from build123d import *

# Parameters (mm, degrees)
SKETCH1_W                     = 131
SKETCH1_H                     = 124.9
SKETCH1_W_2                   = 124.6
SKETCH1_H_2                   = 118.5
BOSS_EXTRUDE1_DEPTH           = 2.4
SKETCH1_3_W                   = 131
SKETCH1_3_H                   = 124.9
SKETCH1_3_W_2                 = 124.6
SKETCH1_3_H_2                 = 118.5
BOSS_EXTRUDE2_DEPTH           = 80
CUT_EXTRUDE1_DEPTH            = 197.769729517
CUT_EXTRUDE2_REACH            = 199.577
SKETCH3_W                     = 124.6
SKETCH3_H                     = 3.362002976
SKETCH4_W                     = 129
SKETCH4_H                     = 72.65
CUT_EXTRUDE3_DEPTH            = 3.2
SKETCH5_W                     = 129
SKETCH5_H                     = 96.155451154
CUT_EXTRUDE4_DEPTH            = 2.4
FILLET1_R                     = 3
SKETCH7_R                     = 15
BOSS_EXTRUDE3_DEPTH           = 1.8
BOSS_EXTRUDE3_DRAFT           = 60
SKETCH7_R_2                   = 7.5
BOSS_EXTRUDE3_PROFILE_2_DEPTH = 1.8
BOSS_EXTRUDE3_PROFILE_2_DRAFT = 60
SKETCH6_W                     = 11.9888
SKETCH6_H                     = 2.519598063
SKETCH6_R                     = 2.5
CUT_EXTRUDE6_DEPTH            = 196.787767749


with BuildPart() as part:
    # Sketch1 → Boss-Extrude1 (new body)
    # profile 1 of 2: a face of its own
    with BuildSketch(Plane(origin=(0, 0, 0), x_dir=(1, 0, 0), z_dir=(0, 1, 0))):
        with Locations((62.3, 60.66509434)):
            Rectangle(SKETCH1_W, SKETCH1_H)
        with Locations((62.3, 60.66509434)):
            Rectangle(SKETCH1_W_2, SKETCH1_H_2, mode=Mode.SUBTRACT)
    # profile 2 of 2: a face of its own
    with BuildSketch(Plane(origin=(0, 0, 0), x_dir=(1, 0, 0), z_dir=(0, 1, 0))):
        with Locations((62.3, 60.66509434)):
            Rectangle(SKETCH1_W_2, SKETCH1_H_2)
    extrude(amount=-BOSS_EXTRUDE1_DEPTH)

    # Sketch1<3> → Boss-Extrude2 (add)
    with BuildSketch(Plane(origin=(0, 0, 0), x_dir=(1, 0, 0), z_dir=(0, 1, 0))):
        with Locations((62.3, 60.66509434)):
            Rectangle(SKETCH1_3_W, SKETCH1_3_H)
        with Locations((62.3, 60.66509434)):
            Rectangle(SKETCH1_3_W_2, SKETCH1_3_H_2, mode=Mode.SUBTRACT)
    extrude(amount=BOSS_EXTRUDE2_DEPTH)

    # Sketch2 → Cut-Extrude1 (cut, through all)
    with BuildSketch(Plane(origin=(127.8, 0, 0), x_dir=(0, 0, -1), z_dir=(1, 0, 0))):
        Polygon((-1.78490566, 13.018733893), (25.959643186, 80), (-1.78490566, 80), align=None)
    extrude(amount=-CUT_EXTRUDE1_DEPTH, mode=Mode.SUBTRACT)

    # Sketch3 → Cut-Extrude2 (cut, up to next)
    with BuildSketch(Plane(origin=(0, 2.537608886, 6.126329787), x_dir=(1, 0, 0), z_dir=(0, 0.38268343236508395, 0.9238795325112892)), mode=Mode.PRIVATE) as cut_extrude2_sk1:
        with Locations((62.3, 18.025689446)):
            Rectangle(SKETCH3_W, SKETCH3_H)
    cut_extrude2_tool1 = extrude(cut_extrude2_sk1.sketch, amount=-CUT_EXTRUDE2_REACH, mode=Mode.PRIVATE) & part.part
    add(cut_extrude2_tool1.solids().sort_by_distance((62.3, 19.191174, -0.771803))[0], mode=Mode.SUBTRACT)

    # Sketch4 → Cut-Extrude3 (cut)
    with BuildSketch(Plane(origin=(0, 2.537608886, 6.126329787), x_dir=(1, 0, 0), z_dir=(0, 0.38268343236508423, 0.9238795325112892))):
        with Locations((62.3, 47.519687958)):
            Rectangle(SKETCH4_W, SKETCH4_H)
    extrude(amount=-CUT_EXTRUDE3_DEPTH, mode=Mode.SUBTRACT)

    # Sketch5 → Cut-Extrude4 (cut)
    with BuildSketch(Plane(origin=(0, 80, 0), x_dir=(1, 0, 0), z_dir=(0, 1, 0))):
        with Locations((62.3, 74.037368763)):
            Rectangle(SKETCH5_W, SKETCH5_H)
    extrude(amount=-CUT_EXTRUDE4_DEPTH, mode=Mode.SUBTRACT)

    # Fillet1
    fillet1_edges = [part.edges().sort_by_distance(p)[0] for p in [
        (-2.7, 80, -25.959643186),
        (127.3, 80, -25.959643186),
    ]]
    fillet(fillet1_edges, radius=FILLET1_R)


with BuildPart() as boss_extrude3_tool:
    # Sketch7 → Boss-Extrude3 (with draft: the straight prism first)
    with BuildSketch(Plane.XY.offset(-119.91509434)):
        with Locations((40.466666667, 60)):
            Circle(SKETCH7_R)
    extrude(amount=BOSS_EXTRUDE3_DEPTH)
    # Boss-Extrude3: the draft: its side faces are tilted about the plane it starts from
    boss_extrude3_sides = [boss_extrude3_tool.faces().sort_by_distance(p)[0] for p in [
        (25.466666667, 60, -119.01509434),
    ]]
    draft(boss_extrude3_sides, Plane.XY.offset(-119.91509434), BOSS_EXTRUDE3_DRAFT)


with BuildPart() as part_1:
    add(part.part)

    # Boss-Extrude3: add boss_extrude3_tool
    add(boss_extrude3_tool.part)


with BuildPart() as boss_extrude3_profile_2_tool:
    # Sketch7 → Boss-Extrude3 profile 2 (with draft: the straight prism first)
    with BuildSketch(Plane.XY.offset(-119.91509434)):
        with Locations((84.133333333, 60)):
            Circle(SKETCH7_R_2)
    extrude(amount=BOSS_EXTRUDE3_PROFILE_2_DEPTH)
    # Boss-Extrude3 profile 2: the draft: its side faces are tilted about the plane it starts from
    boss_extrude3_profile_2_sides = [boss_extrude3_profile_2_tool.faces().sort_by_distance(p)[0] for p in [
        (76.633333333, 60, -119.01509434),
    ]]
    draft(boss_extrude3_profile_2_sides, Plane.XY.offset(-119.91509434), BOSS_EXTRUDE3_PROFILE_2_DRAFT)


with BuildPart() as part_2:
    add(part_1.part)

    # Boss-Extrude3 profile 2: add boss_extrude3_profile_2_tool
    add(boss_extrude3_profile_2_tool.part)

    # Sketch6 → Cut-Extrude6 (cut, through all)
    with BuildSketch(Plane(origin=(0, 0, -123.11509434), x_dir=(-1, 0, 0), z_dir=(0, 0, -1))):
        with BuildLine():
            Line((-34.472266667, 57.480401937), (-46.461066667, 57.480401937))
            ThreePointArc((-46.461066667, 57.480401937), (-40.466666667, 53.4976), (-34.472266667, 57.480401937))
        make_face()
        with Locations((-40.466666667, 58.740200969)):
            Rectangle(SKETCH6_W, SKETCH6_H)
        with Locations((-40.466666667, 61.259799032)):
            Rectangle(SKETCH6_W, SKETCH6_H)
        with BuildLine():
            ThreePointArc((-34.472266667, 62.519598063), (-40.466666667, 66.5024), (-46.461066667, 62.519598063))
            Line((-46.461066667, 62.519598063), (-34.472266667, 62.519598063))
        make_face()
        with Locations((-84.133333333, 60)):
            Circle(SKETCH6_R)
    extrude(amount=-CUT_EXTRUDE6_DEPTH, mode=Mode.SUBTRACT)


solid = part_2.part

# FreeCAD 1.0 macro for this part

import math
import FreeCAD as App
import Part
import Sketcher
from FreeCAD import Vector
Q = App.Units.Quantity


def edges_at(feature, points):
    """Names of the edges that pass closest to the given points."""
    edges = feature.Shape.Edges
    near = lambda p: min(range(len(edges)), key=lambda i: edges[i].distToShape(Part.Vertex(*p))[0])
    return sorted({f"Edge{near(p) + 1}" for p in points})


def faces_at(feature, points):
    """Names of the faces that lie closest to the given points."""
    faces = feature.Shape.Faces
    near = lambda p: min(range(len(faces)), key=lambda i: faces[i].distToShape(Part.Vertex(*p))[0])
    return sorted({f"Face{near(p) + 1}" for p in points})

doc = App.newDocument("Part")
body = doc.addObject("PartDesign::Body", "Body")

sketch1 = body.newObject("Sketcher::SketchObject", "Sketch")
sketch1.AttachmentSupport = (doc.getObject("XZ_Plane"), [""])
sketch1.MapMode = "FlatFace"
sketch1.addGeometry(Part.LineSegment(Vector(-3.2, -123.115094, 0), Vector(-3.2, 1.784906, 0)), False)
sketch1.addGeometry(Part.LineSegment(Vector(-3.2, 1.784906, 0), Vector(127.8, 1.784906, 0)), False)
sketch1.addGeometry(Part.LineSegment(Vector(127.8, 1.784906, 0), Vector(127.8, -123.115094, 0)), False)
sketch1.addGeometry(Part.LineSegment(Vector(127.8, -123.115094, 0), Vector(-3.2, -123.115094, 0)), False)
sketch1.addConstraint(Sketcher.Constraint("Coincident", 0, 2, 1, 1))
sketch1.addConstraint(Sketcher.Constraint("Coincident", 1, 2, 2, 1))
sketch1.addConstraint(Sketcher.Constraint("Coincident", 2, 2, 3, 1))
sketch1.addConstraint(Sketcher.Constraint("Coincident", 3, 2, 0, 1))
sketch1.addConstraint(Sketcher.Constraint("Vertical", 0))
sketch1.addConstraint(Sketcher.Constraint("Horizontal", 1))
sketch1.addConstraint(Sketcher.Constraint("Vertical", 2))
sketch1.addConstraint(Sketcher.Constraint("Horizontal", 3))
sketch1.addConstraint(Sketcher.Constraint("DistanceX", 1, 1, 1, 2, 131.0))
sketch1.addConstraint(Sketcher.Constraint("DistanceY", 0, 1, 0, 2, 124.9))
sketch1.addConstraint(Sketcher.Constraint("DistanceX", 0, 2, -1, 1, 3.2))
sketch1.addConstraint(Sketcher.Constraint("DistanceY", -1, 1, 0, 2, 1.784906))
pad1 = body.newObject("PartDesign::Pad", "Pad")
pad1.Profile = sketch1
pad1.Length = 2.4

sketch2 = body.newObject("Sketcher::SketchObject", "Sketch001")
sketch2.AttachmentSupport = (doc.getObject("XZ_Plane"), [""])
sketch2.MapMode = "FlatFace"
sketch2.addGeometry(Part.LineSegment(Vector(-3.2, -123.115094, 0), Vector(-3.2, 1.784906, 0)), False)
sketch2.addGeometry(Part.LineSegment(Vector(-3.2, 1.784906, 0), Vector(127.8, 1.784906, 0)), False)
sketch2.addGeometry(Part.LineSegment(Vector(127.8, 1.784906, 0), Vector(127.8, -123.115094, 0)), False)
sketch2.addGeometry(Part.LineSegment(Vector(127.8, -123.115094, 0), Vector(-3.2, -123.115094, 0)), False)
sketch2.addGeometry(Part.LineSegment(Vector(124.6, -1.415094, 0), Vector(0, -1.415094, 0)), False)
sketch2.addGeometry(Part.LineSegment(Vector(0, -1.415094, 0), Vector(0, -119.915094, 0)), False)
sketch2.addGeometry(Part.LineSegment(Vector(0, -119.915094, 0), Vector(124.6, -119.915094, 0)), False)
sketch2.addGeometry(Part.LineSegment(Vector(124.6, -119.915094, 0), Vector(124.6, -1.415094, 0)), False)
sketch2.addConstraint(Sketcher.Constraint("Coincident", 0, 2, 1, 1))
sketch2.addConstraint(Sketcher.Constraint("Coincident", 1, 2, 2, 1))
sketch2.addConstraint(Sketcher.Constraint("Coincident", 2, 2, 3, 1))
sketch2.addConstraint(Sketcher.Constraint("Coincident", 3, 2, 0, 1))
sketch2.addConstraint(Sketcher.Constraint("Coincident", 4, 2, 5, 1))
sketch2.addConstraint(Sketcher.Constraint("Coincident", 5, 2, 6, 1))
sketch2.addConstraint(Sketcher.Constraint("Coincident", 6, 2, 7, 1))
sketch2.addConstraint(Sketcher.Constraint("Coincident", 7, 2, 4, 1))
sketch2.addConstraint(Sketcher.Constraint("Vertical", 0))
sketch2.addConstraint(Sketcher.Constraint("Horizontal", 1))
sketch2.addConstraint(Sketcher.Constraint("Vertical", 2))
sketch2.addConstraint(Sketcher.Constraint("Horizontal", 3))
sketch2.addConstraint(Sketcher.Constraint("Horizontal", 4))
sketch2.addConstraint(Sketcher.Constraint("Vertical", 5))
sketch2.addConstraint(Sketcher.Constraint("Horizontal", 6))
sketch2.addConstraint(Sketcher.Constraint("Vertical", 7))
sketch2.addConstraint(Sketcher.Constraint("PointOnObject", 4, 2, -2))
sketch2.addConstraint(Sketcher.Constraint("DistanceX", 1, 1, 1, 2, 131.0))
sketch2.addConstraint(Sketcher.Constraint("DistanceX", 4, 2, 4, 1, 124.6))
sketch2.addConstraint(Sketcher.Constraint("DistanceY", 0, 1, 0, 2, 124.9))
sketch2.addConstraint(Sketcher.Constraint("DistanceY", 5, 2, 5, 1, 118.5))
sketch2.addConstraint(Sketcher.Constraint("DistanceX", 0, 2, -1, 1, 3.2))
sketch2.addConstraint(Sketcher.Constraint("DistanceY", 4, 2, 0, 2, 3.2))
sketch2.addConstraint(Sketcher.Constraint("DistanceY", -1, 1, 0, 2, 1.784906))
pad2 = body.newObject("PartDesign::Pad", "Pad001")
pad2.Profile = sketch2
pad2.Length = 80
pad2.Reversed = True

sketch3 = body.newObject("Sketcher::SketchObject", "Sketch002")
sketch3.AttachmentSupport = (doc.getObject("YZ_Plane"), [""])
sketch3.MapMode = "FlatFace"
sketch3.AttachmentOffset = App.Placement(Vector(0, 0, 127.8), App.Rotation())
sketch3.addGeometry(Part.LineSegment(Vector(13.018734, 1.784906, 0), Vector(80, -25.959643, 0)), False)
sketch3.addGeometry(Part.LineSegment(Vector(80, -25.959643, 0), Vector(80, 1.784906, 0)), False)
sketch3.addGeometry(Part.LineSegment(Vector(80, 1.784906, 0), Vector(13.018734, 1.784906, 0)), False)
sketch3.addConstraint(Sketcher.Constraint("Coincident", 0, 2, 1, 1))
sketch3.addConstraint(Sketcher.Constraint("Coincident", 1, 2, 2, 1))
sketch3.addConstraint(Sketcher.Constraint("Coincident", 2, 2, 0, 1))
sketch3.addConstraint(Sketcher.Constraint("Vertical", 1))
sketch3.addConstraint(Sketcher.Constraint("Horizontal", 2))
sketch3.addConstraint(Sketcher.Constraint("DistanceX", -1, 1, 0, 2, 80.0))
sketch3.addConstraint(Sketcher.Constraint("Angle", 0, Q("-22.5 deg")))
sketch3.addConstraint(Sketcher.Constraint("Distance", 0, 72.5))
sketch3.addConstraint(Sketcher.Constraint("DistanceY", 0, 2, -1, 1, 25.959643))
pocket1 = body.newObject("PartDesign::Pocket", "Pocket")
pocket1.Profile = sketch3
pocket1.Type = "ThroughAll"

sketch4 = body.newObject("Sketcher::SketchObject", "Sketch003")
sketch4.Placement = App.Placement(Vector(0, 2.537609, 6.12633), App.Rotation(Vector(1, 0, 0), Vector(0, 0.923879533, -0.382683432), Vector(0, 0.382683432, 0.923879533), "ZXY"))
sketch4.addGeometry(Part.LineSegment(Vector(0, 19.706691, 0), Vector(0, 16.344688, 0)), False)
sketch4.addGeometry(Part.LineSegment(Vector(0, 16.344688, 0), Vector(124.6, 16.344688, 0)), False)
sketch4.addGeometry(Part.LineSegment(Vector(124.6, 16.344688, 0), Vector(124.6, 19.706691, 0)), False)
sketch4.addGeometry(Part.LineSegment(Vector(124.6, 19.706691, 0), Vector(0, 19.706691, 0)), False)
sketch4.addConstraint(Sketcher.Constraint("Coincident", 0, 2, 1, 1))
sketch4.addConstraint(Sketcher.Constraint("Coincident", 1, 2, 2, 1))
sketch4.addConstraint(Sketcher.Constraint("Coincident", 2, 2, 3, 1))
sketch4.addConstraint(Sketcher.Constraint("Coincident", 3, 2, 0, 1))
sketch4.addConstraint(Sketcher.Constraint("Vertical", 0))
sketch4.addConstraint(Sketcher.Constraint("Horizontal", 1))
sketch4.addConstraint(Sketcher.Constraint("Vertical", 2))
sketch4.addConstraint(Sketcher.Constraint("Horizontal", 3))
sketch4.addConstraint(Sketcher.Constraint("PointOnObject", 0, 2, -2))
sketch4.addConstraint(Sketcher.Constraint("DistanceX", 1, 1, 1, 2, 124.6))
sketch4.addConstraint(Sketcher.Constraint("DistanceY", 0, 2, 0, 1, 3.362003))
sketch4.addConstraint(Sketcher.Constraint("DistanceY", -1, 1, 2, 2, 19.706691))
pocket2 = body.newObject("PartDesign::Pocket", "Pocket001")
pocket2.Profile = sketch4
pocket2.Length = 1.392587

sketch5 = body.newObject("Sketcher::SketchObject", "Sketch004")
sketch5.Placement = App.Placement(Vector(0, 2.537609, 6.12633), App.Rotation(Vector(1, 0, 0), Vector(0, 0.923879533, -0.382683432), Vector(0, 0.382683432, 0.923879533), "ZXY"))
sketch5.addGeometry(Part.LineSegment(Vector(-2.2, 83.844688, 0), Vector(-2.2, 11.194688, 0)), False)
sketch5.addGeometry(Part.LineSegment(Vector(-2.2, 11.194688, 0), Vector(126.8, 11.194688, 0)), False)
sketch5.addGeometry(Part.LineSegment(Vector(126.8, 11.194688, 0), Vector(126.8, 83.844688, 0)), False)
sketch5.addGeometry(Part.LineSegment(Vector(126.8, 83.844688, 0), Vector(-2.2, 83.844688, 0)), False)
sketch5.addConstraint(Sketcher.Constraint("Coincident", 0, 2, 1, 1))
sketch5.addConstraint(Sketcher.Constraint("Coincident", 1, 2, 2, 1))
sketch5.addConstraint(Sketcher.Constraint("Coincident", 2, 2, 3, 1))
sketch5.addConstraint(Sketcher.Constraint("Coincident", 3, 2, 0, 1))
sketch5.addConstraint(Sketcher.Constraint("Vertical", 0))
sketch5.addConstraint(Sketcher.Constraint("Horizontal", 1))
sketch5.addConstraint(Sketcher.Constraint("Vertical", 2))
sketch5.addConstraint(Sketcher.Constraint("Horizontal", 3))
sketch5.addConstraint(Sketcher.Constraint("DistanceX", 1, 1, 1, 2, 129.0))
sketch5.addConstraint(Sketcher.Constraint("DistanceY", 0, 2, 0, 1, 72.65))
sketch5.addConstraint(Sketcher.Constraint("DistanceX", 0, 2, -1, 1, 2.2))
sketch5.addConstraint(Sketcher.Constraint("DistanceY", -1, 1, 2, 2, 83.844688))
pocket3 = body.newObject("PartDesign::Pocket", "Pocket002")
pocket3.Profile = sketch5
pocket3.Length = 3.2

sketch6 = body.newObject("Sketcher::SketchObject", "Sketch005")
sketch6.AttachmentSupport = (doc.getObject("XZ_Plane"), [""])
sketch6.MapMode = "FlatFace"
sketch6.AttachmentOffset = App.Placement(Vector(0, 0, -80), App.Rotation())
sketch6.addGeometry(Part.LineSegment(Vector(-2.2, -122.115094, 0), Vector(-2.2, -25.959643, 0)), False)
sketch6.addGeometry(Part.LineSegment(Vector(-2.2, -25.959643, 0), Vector(126.8, -25.959643, 0)), False)
sketch6.addGeometry(Part.LineSegment(Vector(126.8, -25.959643, 0), Vector(126.8, -122.115094, 0)), False)
sketch6.addGeometry(Part.LineSegment(Vector(126.8, -122.115094, 0), Vector(-2.2, -122.115094, 0)), False)
sketch6.addConstraint(Sketcher.Constraint("Coincident", 0, 2, 1, 1))
sketch6.addConstraint(Sketcher.Constraint("Coincident", 1, 2, 2, 1))
sketch6.addConstraint(Sketcher.Constraint("Coincident", 2, 2, 3, 1))
sketch6.addConstraint(Sketcher.Constraint("Coincident", 3, 2, 0, 1))
sketch6.addConstraint(Sketcher.Constraint("Vertical", 0))
sketch6.addConstraint(Sketcher.Constraint("Horizontal", 1))
sketch6.addConstraint(Sketcher.Constraint("Vertical", 2))
sketch6.addConstraint(Sketcher.Constraint("Horizontal", 3))
sketch6.addConstraint(Sketcher.Constraint("DistanceX", 1, 1, 1, 2, 129.0))
sketch6.addConstraint(Sketcher.Constraint("DistanceX", 0, 2, -1, 1, 2.2))
sketch6.addConstraint(Sketcher.Constraint("DistanceY", 0, 1, 0, 2, 96.155451))
sketch6.addConstraint(Sketcher.Constraint("DistanceY", 0, 2, -1, 1, 25.959643))
pocket4 = body.newObject("PartDesign::Pocket", "Pocket003")
pocket4.Profile = sketch6
pocket4.Length = 2.4
pocket4.Reversed = True
doc.recompute()

fillet = body.newObject("PartDesign::Fillet", "Fillet")
fillet.Base = (pocket4, edges_at(pocket4, [(-2.7, 80, -25.96), (127.3, 80, -25.96)]))
fillet.Radius = 3
body2 = doc.addObject("PartDesign::Body", "Body001")

sketch7 = body2.newObject("Sketcher::SketchObject", "Sketch006")
sketch7.AttachmentSupport = (doc.getObject("XY_Plane001"), [""])
sketch7.MapMode = "FlatFace"
sketch7.AttachmentOffset = App.Placement(Vector(0, 0, -119.915094), App.Rotation())
sketch7.addGeometry(Part.Circle(Vector(40.466667, 60, 0), Vector(0, 0, 1), 15), False)
sketch7.addConstraint(Sketcher.Constraint("Diameter", 0, 30.0))
sketch7.addConstraint(Sketcher.Constraint("DistanceY", -1, 1, 0, 3, 60.0))
sketch7.addConstraint(Sketcher.Constraint("DistanceX", -1, 1, 0, 3, 40.466667))
pad3 = body2.newObject("PartDesign::Pad", "Pad002")
pad3.Profile = sketch7
pad3.Length = 1.8
doc.recompute()

datumplane = body2.newObject("PartDesign::Plane", "DatumPlane")
datumplane.AttachmentSupport = (doc.getObject("XY_Plane001"), [""])
datumplane.MapMode = "FlatFace"
datumplane.AttachmentOffset = App.Placement(Vector(0, 0, -119.915094), App.Rotation())
draft = body2.newObject("PartDesign::Draft", "Draft")
draft.Base = (pad3, faces_at(pad3, [(25.467, 60, -119.015)]))
draft.NeutralPlane = (datumplane, [""])
draft.Angle = 60
draft.Reversed = False
doc.recompute()

boolean = body.newObject("PartDesign::Boolean", "Boolean")
boolean.Type = "Fuse"
boolean.addObjects([body2])
body3 = doc.addObject("PartDesign::Body", "Body002")

sketch8 = body3.newObject("Sketcher::SketchObject", "Sketch007")
sketch8.AttachmentSupport = (doc.getObject("XY_Plane002"), [""])
sketch8.MapMode = "FlatFace"
sketch8.AttachmentOffset = App.Placement(Vector(0, 0, -119.915094), App.Rotation())
sketch8.addGeometry(Part.Circle(Vector(84.133333, 60, 0), Vector(0, 0, 1), 7.5), False)
sketch8.addConstraint(Sketcher.Constraint("Diameter", 0, 15.0))
sketch8.addConstraint(Sketcher.Constraint("DistanceY", -1, 1, 0, 3, 60.0))
sketch8.addConstraint(Sketcher.Constraint("DistanceX", -1, 1, 0, 3, 84.133333))
pad4 = body3.newObject("PartDesign::Pad", "Pad003")
pad4.Profile = sketch8
pad4.Length = 1.8
doc.recompute()

datumplane2 = body3.newObject("PartDesign::Plane", "DatumPlane001")
datumplane2.AttachmentSupport = (doc.getObject("XY_Plane002"), [""])
datumplane2.MapMode = "FlatFace"
datumplane2.AttachmentOffset = App.Placement(Vector(0, 0, -119.915094), App.Rotation())
draft2 = body3.newObject("PartDesign::Draft", "Draft001")
draft2.Base = (pad4, faces_at(pad4, [(76.633, 60, -119.015)]))
draft2.NeutralPlane = (datumplane2, [""])
draft2.Angle = 60
draft2.Reversed = False
doc.recompute()

boolean2 = body.newObject("PartDesign::Boolean", "Boolean001")
boolean2.Type = "Fuse"
boolean2.addObjects([body3])

sketch9 = body.newObject("Sketcher::SketchObject", "Sketch008")
sketch9.AttachmentSupport = (doc.getObject("XY_Plane"), [""])
sketch9.MapMode = "FlatFace"
sketch9.AttachmentOffset = App.Placement(Vector(0, 0, -123.115094), App.Rotation())
sketch9.addGeometry(Part.ArcOfCircle(Part.Circle(Vector(40.466667, 60, 0), Vector(0, 0, 1), 6.5024), math.radians(-157.201752), math.radians(-22.798248)), False)
sketch9.addGeometry(Part.LineSegment(Vector(34.472267, 57.480402, 0), Vector(34.472267, 62.519598, 0)), False)
sketch9.addGeometry(Part.ArcOfCircle(Part.Circle(Vector(40.466667, 60, 0), Vector(0, 0, 1), 6.5024), math.radians(22.798248), math.radians(157.201752)), False)
sketch9.addGeometry(Part.LineSegment(Vector(46.461067, 62.519598, 0), Vector(46.461067, 57.480402, 0)), False)
sketch9.addGeometry(Part.Circle(Vector(84.133333, 60, 0), Vector(0, 0, 1), 2.5), False)
sketch9.addConstraint(Sketcher.Constraint("Coincident", 0, 1, 1, 1))
sketch9.addConstraint(Sketcher.Constraint("Coincident", 1, 2, 2, 2))
sketch9.addConstraint(Sketcher.Constraint("Coincident", 2, 1, 3, 1))
sketch9.addConstraint(Sketcher.Constraint("Coincident", 3, 2, 0, 2))
sketch9.addConstraint(Sketcher.Constraint("Vertical", 1))
sketch9.addConstraint(Sketcher.Constraint("Vertical", 3))
sketch9.addConstraint(Sketcher.Constraint("Coincident", 2, 3, 0, 3))
sketch9.addConstraint(Sketcher.Constraint("Equal", 0, 2))
sketch9.addConstraint(Sketcher.Constraint("Horizontal", 2, 3, 4, 3))
sketch9.addConstraint(Sketcher.Constraint("Horizontal", 1, 2, 2, 1))
sketch9.addConstraint(Sketcher.Constraint("Diameter", 4, 5.0))
sketch9.addConstraint(Sketcher.Constraint("DistanceY", -1, 1, 0, 3, 60.0))
sketch9.addConstraint(Sketcher.Constraint("Radius", 0, 6.5024))
sketch9.addConstraint(Sketcher.Constraint("DistanceY", -1, 1, 0, 1, 57.480402))
sketch9.addConstraint(Sketcher.Constraint("DistanceX", -1, 1, 0, 3, 40.466667))
sketch9.addConstraint(Sketcher.Constraint("DistanceX", -1, 1, 4, 3, 84.133333))
pocket5 = body.newObject("PartDesign::Pocket", "Pocket004")
pocket5.Profile = sketch9
pocket5.Type = "ThroughAll"
pocket5.Reversed = True

doc.recompute()
